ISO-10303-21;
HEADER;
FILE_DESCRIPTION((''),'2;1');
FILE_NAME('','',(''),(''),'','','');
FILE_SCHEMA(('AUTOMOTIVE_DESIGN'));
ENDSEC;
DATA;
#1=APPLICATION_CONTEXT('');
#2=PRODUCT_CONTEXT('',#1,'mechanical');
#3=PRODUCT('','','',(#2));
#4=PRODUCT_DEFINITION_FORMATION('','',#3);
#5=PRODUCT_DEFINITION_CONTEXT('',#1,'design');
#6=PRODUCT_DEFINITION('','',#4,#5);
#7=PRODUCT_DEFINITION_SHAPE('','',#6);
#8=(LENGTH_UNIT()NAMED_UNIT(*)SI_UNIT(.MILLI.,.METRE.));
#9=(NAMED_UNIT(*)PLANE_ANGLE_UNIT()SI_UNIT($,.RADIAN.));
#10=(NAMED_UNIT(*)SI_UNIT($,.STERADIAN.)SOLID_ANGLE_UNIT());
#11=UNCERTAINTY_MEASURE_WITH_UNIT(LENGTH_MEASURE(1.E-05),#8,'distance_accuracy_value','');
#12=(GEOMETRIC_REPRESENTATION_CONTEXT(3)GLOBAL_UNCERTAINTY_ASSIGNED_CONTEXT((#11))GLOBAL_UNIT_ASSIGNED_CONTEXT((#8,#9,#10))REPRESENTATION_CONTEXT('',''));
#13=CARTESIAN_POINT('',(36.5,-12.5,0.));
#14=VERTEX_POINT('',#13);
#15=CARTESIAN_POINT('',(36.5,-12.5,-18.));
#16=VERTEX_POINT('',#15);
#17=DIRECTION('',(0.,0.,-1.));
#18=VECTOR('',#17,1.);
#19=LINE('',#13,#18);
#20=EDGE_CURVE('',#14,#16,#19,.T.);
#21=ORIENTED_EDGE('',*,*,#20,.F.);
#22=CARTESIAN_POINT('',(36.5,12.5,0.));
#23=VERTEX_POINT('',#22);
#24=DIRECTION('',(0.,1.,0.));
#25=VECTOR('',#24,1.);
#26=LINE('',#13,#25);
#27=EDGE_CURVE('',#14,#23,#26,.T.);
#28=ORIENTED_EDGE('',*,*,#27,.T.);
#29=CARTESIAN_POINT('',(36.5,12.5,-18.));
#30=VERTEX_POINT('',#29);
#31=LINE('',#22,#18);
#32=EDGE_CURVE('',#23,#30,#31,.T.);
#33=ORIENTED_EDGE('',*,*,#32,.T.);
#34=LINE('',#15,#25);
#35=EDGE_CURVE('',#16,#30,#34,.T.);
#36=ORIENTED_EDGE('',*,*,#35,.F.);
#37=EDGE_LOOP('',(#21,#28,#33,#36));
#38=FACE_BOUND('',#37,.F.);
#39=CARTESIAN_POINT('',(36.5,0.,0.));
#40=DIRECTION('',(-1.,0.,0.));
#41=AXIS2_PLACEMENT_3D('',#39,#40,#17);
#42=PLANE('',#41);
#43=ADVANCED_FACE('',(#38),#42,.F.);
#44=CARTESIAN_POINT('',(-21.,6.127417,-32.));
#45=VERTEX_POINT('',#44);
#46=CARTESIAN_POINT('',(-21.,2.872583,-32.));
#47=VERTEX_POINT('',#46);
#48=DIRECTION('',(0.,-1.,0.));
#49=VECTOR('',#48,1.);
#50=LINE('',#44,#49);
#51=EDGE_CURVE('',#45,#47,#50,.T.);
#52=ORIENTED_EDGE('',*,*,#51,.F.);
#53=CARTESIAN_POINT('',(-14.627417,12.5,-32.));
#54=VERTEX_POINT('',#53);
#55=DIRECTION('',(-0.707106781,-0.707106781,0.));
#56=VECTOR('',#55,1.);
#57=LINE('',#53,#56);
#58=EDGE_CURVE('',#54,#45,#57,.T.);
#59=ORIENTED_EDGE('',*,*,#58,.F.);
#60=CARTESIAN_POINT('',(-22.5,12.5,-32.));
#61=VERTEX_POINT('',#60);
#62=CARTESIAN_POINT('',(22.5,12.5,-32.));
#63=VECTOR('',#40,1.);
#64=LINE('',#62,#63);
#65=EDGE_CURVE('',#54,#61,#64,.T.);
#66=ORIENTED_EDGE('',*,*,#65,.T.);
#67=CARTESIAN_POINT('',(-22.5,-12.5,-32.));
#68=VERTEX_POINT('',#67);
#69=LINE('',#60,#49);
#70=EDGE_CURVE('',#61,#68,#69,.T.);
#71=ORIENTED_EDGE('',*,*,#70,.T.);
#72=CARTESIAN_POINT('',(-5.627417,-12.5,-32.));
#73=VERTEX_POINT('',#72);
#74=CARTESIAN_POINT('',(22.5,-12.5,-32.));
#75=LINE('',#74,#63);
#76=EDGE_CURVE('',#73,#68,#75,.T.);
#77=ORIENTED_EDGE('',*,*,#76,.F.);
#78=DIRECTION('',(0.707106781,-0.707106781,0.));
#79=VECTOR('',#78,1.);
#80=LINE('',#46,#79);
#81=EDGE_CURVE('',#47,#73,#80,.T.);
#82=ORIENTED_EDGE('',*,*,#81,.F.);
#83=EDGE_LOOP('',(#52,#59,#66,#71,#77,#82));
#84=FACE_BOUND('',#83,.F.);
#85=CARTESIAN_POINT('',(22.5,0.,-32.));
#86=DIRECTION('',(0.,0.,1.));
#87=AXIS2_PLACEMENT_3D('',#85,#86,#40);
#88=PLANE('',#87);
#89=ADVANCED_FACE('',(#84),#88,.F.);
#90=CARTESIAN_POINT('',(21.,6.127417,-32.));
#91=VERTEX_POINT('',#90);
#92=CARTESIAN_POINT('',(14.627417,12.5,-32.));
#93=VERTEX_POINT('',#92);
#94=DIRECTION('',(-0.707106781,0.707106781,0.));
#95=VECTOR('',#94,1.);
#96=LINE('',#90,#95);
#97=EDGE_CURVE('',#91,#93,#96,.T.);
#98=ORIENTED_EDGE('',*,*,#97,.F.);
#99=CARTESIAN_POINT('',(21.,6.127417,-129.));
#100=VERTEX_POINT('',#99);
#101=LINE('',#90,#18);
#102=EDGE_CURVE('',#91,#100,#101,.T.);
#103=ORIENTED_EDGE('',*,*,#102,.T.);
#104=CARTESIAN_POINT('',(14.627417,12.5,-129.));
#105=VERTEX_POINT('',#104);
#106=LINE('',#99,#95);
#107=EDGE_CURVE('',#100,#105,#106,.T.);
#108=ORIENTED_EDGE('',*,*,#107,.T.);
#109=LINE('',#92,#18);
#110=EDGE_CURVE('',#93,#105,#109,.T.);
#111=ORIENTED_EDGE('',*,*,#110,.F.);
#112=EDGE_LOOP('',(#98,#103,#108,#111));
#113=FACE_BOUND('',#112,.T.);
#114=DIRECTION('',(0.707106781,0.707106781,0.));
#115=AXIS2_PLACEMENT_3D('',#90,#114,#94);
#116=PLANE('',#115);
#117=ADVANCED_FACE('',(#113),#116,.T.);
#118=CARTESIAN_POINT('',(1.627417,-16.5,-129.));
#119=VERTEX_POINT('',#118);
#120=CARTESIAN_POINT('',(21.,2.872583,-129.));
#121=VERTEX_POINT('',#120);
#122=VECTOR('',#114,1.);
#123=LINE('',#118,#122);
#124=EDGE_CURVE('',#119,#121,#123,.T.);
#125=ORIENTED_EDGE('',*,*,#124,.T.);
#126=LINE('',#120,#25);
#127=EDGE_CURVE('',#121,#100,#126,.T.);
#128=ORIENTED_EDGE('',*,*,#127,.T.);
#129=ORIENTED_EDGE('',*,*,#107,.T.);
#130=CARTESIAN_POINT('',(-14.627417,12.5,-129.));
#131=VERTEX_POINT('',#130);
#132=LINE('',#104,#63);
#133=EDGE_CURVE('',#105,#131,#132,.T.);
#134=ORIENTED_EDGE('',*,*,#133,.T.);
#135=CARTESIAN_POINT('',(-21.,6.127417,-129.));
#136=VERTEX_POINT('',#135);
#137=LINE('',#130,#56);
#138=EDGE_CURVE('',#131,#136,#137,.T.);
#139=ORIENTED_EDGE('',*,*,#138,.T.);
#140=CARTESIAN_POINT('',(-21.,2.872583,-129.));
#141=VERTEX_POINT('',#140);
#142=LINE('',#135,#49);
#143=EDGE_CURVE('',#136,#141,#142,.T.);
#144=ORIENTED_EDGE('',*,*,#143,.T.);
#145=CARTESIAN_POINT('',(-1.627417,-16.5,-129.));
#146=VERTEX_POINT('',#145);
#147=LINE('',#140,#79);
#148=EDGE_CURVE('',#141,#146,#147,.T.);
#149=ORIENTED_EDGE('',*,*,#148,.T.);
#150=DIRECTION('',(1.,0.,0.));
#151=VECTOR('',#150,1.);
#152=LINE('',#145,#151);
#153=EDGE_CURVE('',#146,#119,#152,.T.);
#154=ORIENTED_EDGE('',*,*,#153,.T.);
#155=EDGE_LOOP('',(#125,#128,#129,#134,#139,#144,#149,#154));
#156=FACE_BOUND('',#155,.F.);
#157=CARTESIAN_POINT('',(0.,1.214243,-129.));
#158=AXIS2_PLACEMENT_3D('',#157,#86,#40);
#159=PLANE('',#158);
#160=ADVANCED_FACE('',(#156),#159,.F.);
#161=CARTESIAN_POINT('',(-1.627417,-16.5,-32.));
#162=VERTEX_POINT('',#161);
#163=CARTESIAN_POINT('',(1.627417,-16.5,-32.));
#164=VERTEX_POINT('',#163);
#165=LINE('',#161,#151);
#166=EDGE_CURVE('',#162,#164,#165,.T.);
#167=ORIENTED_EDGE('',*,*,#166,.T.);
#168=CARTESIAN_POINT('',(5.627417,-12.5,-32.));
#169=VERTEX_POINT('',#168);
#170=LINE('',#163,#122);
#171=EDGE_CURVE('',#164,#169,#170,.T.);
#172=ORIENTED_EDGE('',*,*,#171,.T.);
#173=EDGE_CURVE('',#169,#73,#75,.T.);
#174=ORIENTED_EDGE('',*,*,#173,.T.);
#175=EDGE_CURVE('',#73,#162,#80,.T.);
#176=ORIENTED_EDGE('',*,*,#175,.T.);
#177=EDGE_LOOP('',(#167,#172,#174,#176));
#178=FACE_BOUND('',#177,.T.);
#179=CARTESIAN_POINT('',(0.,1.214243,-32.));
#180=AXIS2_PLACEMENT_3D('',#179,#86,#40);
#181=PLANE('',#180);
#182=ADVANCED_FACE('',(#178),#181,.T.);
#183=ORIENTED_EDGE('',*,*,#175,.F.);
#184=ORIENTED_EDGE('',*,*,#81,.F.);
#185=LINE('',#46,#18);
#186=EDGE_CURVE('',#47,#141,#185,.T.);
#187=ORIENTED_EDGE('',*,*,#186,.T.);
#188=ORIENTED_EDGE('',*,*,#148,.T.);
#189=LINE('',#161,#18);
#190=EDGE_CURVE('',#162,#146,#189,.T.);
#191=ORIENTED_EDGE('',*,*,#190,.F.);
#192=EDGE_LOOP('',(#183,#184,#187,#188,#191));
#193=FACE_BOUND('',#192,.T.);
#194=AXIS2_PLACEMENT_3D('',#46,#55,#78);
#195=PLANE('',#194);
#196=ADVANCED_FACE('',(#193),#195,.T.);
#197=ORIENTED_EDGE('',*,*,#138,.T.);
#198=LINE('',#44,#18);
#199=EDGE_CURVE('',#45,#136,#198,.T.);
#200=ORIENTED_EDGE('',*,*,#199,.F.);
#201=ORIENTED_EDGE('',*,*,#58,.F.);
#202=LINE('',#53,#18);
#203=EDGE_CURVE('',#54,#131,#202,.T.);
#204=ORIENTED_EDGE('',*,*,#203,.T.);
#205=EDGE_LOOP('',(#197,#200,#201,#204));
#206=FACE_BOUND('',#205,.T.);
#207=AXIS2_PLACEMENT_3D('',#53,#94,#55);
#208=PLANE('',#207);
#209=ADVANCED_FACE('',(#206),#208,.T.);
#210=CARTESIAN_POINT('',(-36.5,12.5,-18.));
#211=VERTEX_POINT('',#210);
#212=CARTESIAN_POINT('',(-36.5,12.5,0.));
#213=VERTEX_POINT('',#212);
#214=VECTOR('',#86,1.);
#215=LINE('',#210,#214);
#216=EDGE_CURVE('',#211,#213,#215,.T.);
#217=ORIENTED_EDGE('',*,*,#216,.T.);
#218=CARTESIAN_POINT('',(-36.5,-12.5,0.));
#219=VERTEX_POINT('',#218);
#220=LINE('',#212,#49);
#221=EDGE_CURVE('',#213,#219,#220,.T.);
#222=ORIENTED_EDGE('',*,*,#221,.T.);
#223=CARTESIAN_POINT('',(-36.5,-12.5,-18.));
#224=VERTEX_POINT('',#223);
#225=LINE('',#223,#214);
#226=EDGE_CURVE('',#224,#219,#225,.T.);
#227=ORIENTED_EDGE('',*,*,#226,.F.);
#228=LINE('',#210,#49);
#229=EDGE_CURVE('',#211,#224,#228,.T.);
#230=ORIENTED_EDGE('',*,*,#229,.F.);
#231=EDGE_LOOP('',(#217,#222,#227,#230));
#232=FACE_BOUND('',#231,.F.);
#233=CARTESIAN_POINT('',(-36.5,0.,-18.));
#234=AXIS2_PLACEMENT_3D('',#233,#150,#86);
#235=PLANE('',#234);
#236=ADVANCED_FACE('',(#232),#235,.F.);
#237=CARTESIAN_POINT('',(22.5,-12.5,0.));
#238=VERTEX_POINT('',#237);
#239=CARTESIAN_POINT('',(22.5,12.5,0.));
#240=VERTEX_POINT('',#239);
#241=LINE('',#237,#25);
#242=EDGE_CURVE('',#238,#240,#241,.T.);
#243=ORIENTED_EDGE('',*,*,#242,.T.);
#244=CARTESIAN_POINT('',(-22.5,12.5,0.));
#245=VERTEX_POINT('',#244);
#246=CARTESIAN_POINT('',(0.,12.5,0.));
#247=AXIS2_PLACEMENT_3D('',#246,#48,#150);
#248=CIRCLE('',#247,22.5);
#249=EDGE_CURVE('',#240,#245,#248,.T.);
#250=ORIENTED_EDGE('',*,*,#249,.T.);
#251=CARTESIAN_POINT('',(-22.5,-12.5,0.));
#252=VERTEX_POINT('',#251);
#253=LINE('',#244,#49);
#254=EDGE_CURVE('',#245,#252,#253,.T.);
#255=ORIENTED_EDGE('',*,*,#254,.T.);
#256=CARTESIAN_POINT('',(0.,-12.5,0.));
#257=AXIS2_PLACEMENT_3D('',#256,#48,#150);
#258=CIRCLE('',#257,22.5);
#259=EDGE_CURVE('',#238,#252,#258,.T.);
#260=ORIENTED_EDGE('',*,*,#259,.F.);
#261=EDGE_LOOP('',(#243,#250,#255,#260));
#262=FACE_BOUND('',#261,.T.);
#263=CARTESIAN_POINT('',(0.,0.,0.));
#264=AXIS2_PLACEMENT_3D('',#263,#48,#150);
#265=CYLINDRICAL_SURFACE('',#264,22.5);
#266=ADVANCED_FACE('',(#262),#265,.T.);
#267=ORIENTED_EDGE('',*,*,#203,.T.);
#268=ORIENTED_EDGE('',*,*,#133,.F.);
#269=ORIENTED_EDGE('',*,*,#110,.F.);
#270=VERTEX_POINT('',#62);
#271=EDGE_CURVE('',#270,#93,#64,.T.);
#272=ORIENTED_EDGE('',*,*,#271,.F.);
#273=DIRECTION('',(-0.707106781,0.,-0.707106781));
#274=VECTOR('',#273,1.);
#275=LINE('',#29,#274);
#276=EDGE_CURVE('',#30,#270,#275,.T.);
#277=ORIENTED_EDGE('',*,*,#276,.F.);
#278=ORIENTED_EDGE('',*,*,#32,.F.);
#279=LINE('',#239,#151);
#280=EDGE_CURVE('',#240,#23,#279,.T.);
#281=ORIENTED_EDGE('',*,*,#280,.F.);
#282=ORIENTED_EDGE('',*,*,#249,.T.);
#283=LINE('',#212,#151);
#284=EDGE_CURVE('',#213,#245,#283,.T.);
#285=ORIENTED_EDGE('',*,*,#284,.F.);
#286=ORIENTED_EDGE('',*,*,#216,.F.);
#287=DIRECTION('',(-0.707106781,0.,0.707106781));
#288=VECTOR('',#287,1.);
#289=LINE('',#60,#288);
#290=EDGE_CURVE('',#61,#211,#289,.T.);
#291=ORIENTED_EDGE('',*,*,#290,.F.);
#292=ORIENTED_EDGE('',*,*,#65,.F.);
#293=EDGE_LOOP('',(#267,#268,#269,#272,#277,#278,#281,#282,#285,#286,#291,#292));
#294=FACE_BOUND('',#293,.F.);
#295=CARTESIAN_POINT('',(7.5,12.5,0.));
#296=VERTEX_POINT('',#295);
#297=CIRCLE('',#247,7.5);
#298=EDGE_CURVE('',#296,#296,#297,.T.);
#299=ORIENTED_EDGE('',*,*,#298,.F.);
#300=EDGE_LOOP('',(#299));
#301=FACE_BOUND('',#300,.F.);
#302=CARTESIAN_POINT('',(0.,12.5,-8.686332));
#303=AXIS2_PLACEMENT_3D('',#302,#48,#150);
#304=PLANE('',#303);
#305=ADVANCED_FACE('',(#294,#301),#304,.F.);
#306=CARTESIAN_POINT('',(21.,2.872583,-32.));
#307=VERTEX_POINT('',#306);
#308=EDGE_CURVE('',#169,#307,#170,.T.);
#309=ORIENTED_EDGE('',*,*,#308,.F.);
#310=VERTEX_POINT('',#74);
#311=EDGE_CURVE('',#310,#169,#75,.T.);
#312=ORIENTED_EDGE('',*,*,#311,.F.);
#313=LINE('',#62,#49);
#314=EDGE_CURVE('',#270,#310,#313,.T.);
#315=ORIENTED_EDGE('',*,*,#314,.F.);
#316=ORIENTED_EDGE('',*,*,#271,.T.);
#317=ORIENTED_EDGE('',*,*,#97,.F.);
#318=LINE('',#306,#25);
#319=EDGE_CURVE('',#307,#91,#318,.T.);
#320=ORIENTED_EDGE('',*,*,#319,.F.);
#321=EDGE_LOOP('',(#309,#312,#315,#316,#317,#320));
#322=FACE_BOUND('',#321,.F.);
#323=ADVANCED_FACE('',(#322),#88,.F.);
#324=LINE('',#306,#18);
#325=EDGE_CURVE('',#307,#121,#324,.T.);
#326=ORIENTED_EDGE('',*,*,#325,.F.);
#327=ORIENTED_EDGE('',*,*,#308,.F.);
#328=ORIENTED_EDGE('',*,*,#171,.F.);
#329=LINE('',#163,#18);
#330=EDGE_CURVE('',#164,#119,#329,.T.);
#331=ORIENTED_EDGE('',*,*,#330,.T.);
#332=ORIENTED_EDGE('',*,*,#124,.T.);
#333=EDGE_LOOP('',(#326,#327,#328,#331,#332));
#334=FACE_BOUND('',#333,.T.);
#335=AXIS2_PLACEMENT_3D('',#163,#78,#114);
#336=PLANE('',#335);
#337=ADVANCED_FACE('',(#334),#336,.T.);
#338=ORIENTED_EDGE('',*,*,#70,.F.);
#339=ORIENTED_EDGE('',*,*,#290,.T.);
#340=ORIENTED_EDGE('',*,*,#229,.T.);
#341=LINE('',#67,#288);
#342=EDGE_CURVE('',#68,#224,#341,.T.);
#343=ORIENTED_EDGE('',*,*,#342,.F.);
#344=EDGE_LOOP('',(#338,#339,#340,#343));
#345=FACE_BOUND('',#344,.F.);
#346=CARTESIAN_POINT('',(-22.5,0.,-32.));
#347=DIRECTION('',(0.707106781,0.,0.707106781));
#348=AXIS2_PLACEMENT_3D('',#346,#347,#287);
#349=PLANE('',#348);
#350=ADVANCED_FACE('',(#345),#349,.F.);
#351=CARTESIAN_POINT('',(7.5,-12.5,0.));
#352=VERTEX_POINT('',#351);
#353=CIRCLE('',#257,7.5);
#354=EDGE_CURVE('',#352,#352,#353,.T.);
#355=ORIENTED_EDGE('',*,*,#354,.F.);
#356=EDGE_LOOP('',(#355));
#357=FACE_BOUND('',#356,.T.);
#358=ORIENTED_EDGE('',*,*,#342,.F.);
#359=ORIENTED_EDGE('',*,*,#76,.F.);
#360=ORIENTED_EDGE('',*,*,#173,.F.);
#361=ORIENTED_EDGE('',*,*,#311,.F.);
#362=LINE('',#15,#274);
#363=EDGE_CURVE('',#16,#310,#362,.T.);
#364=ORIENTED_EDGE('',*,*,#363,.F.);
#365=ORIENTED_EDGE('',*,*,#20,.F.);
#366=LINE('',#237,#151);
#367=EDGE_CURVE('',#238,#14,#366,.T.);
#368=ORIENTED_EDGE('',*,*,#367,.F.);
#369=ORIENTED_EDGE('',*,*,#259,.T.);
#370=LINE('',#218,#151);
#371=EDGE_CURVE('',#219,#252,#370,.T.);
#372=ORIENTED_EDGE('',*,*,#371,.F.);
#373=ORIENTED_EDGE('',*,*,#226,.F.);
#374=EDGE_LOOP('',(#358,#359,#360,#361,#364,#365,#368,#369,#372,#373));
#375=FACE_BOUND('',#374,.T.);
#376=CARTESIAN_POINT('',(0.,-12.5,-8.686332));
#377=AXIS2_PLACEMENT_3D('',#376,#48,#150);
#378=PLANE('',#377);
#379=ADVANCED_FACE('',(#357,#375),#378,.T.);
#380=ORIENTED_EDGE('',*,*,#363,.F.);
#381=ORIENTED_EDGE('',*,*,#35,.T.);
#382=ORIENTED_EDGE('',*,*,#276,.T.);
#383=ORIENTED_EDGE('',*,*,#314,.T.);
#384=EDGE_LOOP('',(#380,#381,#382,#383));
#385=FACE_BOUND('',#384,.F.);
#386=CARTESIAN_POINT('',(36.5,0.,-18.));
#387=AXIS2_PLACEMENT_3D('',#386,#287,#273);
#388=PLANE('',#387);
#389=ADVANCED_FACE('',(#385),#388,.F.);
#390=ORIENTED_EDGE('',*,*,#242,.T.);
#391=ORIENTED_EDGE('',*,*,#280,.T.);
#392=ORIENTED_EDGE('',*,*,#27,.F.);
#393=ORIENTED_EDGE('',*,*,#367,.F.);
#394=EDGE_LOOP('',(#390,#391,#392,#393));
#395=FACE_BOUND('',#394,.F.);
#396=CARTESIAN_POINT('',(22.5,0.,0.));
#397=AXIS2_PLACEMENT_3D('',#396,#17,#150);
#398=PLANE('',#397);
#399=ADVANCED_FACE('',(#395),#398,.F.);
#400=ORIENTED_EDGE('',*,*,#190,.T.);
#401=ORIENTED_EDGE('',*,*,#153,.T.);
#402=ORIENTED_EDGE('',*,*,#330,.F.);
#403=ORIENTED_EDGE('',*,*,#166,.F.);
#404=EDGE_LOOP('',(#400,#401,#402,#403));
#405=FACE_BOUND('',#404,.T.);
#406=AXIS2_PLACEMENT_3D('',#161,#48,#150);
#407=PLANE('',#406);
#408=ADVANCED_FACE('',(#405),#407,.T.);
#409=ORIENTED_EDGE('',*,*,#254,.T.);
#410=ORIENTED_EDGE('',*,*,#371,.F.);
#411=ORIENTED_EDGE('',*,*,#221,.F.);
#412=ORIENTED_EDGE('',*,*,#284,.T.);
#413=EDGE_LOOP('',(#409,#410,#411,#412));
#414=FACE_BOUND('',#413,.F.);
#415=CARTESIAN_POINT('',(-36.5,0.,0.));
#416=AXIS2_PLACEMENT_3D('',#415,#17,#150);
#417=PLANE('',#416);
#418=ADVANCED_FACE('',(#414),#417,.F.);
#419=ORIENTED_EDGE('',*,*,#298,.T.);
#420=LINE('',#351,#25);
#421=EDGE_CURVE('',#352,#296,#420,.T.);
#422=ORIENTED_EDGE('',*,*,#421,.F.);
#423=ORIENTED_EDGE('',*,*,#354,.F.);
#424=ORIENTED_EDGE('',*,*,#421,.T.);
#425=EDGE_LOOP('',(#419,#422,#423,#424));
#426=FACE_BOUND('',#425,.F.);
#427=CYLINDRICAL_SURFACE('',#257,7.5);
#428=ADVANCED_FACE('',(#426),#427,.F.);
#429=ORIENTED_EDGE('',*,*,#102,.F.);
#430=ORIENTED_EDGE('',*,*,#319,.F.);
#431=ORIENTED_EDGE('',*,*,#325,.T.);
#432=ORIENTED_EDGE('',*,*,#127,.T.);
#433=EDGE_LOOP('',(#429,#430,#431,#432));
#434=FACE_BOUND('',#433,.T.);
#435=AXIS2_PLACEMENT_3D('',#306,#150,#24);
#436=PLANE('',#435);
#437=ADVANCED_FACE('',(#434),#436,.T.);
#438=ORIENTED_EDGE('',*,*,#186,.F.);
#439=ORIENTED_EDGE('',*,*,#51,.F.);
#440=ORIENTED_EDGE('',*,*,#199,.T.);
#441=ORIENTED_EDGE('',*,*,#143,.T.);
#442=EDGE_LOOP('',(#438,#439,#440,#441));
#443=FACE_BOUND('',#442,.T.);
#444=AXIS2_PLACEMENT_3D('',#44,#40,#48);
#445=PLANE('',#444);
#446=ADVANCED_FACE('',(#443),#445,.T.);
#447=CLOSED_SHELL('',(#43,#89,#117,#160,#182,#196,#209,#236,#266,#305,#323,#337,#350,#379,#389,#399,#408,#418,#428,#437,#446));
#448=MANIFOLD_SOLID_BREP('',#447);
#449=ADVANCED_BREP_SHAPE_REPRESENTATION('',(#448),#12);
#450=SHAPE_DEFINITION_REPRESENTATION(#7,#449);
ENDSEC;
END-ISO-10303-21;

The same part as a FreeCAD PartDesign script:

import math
import FreeCAD as App
import Part
import Sketcher
from FreeCAD import Vector
Q = App.Units.Quantity

doc = App.newDocument("Part")
body = doc.addObject("PartDesign::Body", "Body")

# Sketch on XZ plane
sketch1 = body.newObject("Sketcher::SketchObject", "Sketch")
sketch1.AttachmentSupport = (doc.getObject("XZ_Plane"), [""])
sketch1.MapMode = "FlatFace"
sketch1.addGeometry([
    Part.ArcOfCircle(Part.Circle(Vector(0, 0, 0), Vector(0, 0, 1), 22), math.radians(0), math.radians(180)),  # 0
    Part.LineSegment(Vector(-22, 0, 0), Vector(-36, 0, 0)),  # 1
    Part.LineSegment(Vector(-36, 0, 0), Vector(-36, -18, 0)),  # 2
    Part.LineSegment(Vector(-36, -18, 0), Vector(-22, -32, 0)),  # 3
    Part.LineSegment(Vector(-22, -32, 0), Vector(22, -32, 0)),  # 4
    Part.LineSegment(Vector(22, -32, 0), Vector(36, -18, 0)),  # 5
    Part.LineSegment(Vector(36, -18, 0), Vector(36, 0, 0)),  # 6
    Part.LineSegment(Vector(36, 0, 0), Vector(22, 0, 0)),  # 7
], False)
sketch1.addConstraint([
    Sketcher.Constraint("Coincident", 0, 2, 1, 1),
    Sketcher.Constraint("Coincident", 1, 2, 2, 1),
    Sketcher.Constraint("Coincident", 2, 2, 3, 1),
    Sketcher.Constraint("Coincident", 3, 2, 4, 1),
    Sketcher.Constraint("Coincident", 4, 2, 5, 1),
    Sketcher.Constraint("Coincident", 5, 2, 6, 1),
    Sketcher.Constraint("Coincident", 6, 2, 7, 1),
    Sketcher.Constraint("Coincident", 7, 2, 0, 1),
    Sketcher.Constraint("Horizontal", 1),
    Sketcher.Constraint("Vertical", 2),
    Sketcher.Constraint("Horizontal", 4),
    Sketcher.Constraint("Vertical", 6),
    Sketcher.Constraint("Horizontal", 7),
    Sketcher.Constraint("Coincident", 0, 3, -1, 1),
    Sketcher.Constraint("Symmetric", 1, 2, 6, 2, -1, 1),
    Sketcher.Constraint("PointOnObject", 0, 2, -1),
    Sketcher.Constraint("Perpendicular", 3, 5),
    Sketcher.Constraint("Horizontal", 2, 2, 5, 2),
    Sketcher.Constraint("Vertical", 0, 2, 3, 2),
    Sketcher.Constraint("Vertical", 4, 2, 7, 2),
    Sketcher.Constraint("Radius", 0, Q("22.5 mm")),
    Sketcher.Constraint("DistanceX", 1, 2, 1, 1, Q("14 mm")),
    Sketcher.Constraint("DistanceY", 2, 2, 2, 1, Q("18 mm")),
])
pad1 = body.newObject("PartDesign::Pad", "Pad")
pad1.Profile = sketch1
pad1.Length = 25
pad1.Midplane = True

# Sketch on XZ plane
sketch2 = body.newObject("Sketcher::SketchObject", "Sketch001")
sketch2.AttachmentSupport = (doc.getObject("XZ_Plane"), [""])
sketch2.MapMode = "FlatFace"
sketch2.AttachmentOffset = App.Placement(Vector(0, 0, 12.5), App.Rotation())
sketch2.addGeometry(Part.Circle(Vector(0, 0, 0), Vector(0, 0, 1), 8), False)
sketch2.addConstraint([
    Sketcher.Constraint("Coincident", 0, 3, -1, 1),
    Sketcher.Constraint("Diameter", 0, Q("15 mm")),
])
pocket1 = body.newObject("PartDesign::Pocket", "Pocket")
pocket1.Profile = sketch2
pocket1.Type = "ThroughAll"

# Sketch on XY plane
sketch3 = body.newObject("Sketcher::SketchObject", "Sketch002")
sketch3.AttachmentSupport = (doc.getObject("XY_Plane"), [""])
sketch3.MapMode = "FlatFace"
sketch3.AttachmentOffset = App.Placement(Vector(0, 0, -32), App.Rotation())
sketch3.addGeometry([
    Part.LineSegment(Vector(-1.6, -16.5, 0), Vector(-21, 2.9, 0)),  # 0
    Part.LineSegment(Vector(-21, 2.9, 0), Vector(-21, 6.1, 0)),  # 1
    Part.LineSegment(Vector(-21, 6.1, 0), Vector(-14.6, 12.5, 0)),  # 2
    Part.LineSegment(Vector(-14.6, 12.5, 0), Vector(14.6, 12.5, 0)),  # 3
    Part.LineSegment(Vector(14.6, 12.5, 0), Vector(21, 6.1, 0)),  # 4
    Part.LineSegment(Vector(21, 6.1, 0), Vector(21, 2.9, 0)),  # 5
    Part.LineSegment(Vector(21, 2.9, 0), Vector(1.6, -16.5, 0)),  # 6
    Part.LineSegment(Vector(1.6, -16.5, 0), Vector(-1.6, -16.5, 0)),  # 7
], False)
sketch3.addConstraint([
    Sketcher.Constraint("Coincident", 0, 2, 1, 1),
    Sketcher.Constraint("Coincident", 1, 2, 2, 1),
    Sketcher.Constraint("Coincident", 2, 2, 3, 1),
    Sketcher.Constraint("Coincident", 3, 2, 4, 1),
    Sketcher.Constraint("Coincident", 4, 2, 5, 1),
    Sketcher.Constraint("Coincident", 5, 2, 6, 1),
    Sketcher.Constraint("Coincident", 6, 2, 7, 1),
    Sketcher.Constraint("Coincident", 7, 2, 0, 1),
    Sketcher.Constraint("Vertical", 1),
    Sketcher.Constraint("Horizontal", 3),
    Sketcher.Constraint("Vertical", 5),
    Sketcher.Constraint("Horizontal", 7),
    Sketcher.Constraint("Symmetric", 1, 2, 4, 2, -2),
    Sketcher.Constraint("Perpendicular", 0, 2),
    Sketcher.Constraint("Perpendicular", 2, 4),
    Sketcher.Constraint("Perpendicular", 4, 6),
    Sketcher.Constraint("Horizontal", 0, 2, 5, 2),
    Sketcher.Constraint("Equal", 7, 1),
    Sketcher.Constraint("Equal", 2, 4),
    Sketcher.Constraint("DistanceX", 0, 2, -1, 1, Q("21 mm")),
    Sketcher.Constraint("DistanceX", 6, 2, 3, 2, Q("13 mm")),
    Sketcher.Constraint("DistanceY", -1, 1, 2, 2, Q("12.5 mm")),
    Sketcher.Constraint("Distance", 0, Q("27.39697 mm")),
])
pad2 = body.newObject("PartDesign::Pad", "Pad001")
pad2.Profile = sketch3
pad2.Length = 97
pad2.Reversed = True

doc.recompute()
